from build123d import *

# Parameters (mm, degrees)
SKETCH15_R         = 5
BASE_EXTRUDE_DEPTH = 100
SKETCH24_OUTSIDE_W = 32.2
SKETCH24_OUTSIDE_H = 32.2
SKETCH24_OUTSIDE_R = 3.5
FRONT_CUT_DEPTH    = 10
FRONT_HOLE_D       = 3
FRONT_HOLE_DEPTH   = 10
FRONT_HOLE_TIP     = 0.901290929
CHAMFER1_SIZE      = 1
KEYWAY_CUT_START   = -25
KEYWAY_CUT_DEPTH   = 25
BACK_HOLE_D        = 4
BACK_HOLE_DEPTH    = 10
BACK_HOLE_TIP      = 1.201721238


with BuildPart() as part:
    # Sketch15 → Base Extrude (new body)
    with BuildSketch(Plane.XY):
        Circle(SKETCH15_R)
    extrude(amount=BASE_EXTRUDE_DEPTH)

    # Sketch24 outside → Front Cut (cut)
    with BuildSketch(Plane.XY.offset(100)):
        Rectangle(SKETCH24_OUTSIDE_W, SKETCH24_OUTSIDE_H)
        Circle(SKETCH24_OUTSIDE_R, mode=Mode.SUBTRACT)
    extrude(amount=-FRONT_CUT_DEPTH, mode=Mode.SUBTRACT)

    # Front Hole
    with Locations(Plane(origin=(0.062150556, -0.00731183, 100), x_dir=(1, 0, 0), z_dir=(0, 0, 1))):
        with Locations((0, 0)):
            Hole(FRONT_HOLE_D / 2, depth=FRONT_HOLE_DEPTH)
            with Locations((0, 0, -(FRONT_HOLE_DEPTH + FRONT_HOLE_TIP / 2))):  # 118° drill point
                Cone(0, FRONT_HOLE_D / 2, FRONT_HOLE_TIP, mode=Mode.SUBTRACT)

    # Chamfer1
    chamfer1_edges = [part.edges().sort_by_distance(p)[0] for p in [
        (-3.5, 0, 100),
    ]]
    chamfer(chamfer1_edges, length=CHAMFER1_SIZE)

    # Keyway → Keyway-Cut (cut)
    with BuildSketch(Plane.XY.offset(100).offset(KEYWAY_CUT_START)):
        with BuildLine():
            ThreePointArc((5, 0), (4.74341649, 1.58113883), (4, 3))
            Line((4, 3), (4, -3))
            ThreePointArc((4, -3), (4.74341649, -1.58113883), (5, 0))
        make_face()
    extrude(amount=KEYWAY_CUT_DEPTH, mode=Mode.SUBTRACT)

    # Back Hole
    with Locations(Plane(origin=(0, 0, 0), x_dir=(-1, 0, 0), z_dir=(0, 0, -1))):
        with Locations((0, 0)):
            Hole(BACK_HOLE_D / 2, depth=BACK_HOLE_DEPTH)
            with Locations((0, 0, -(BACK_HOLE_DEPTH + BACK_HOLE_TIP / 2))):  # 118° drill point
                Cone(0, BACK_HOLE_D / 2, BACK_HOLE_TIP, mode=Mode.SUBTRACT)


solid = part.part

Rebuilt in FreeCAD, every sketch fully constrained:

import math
import FreeCAD as App
import Part
import Sketcher
from FreeCAD import Vector
Q = App.Units.Quantity


def edges_at(feature, points):
    """Names of the edges that pass closest to the given points."""
    edges = feature.Shape.Edges
    near = lambda p: min(range(len(edges)), key=lambda i: edges[i].distToShape(Part.Vertex(*p))[0])
    return sorted({f"Edge{near(p) + 1}" for p in points})


def add_polygon(sketch, points):
    """Adds a closed chain of lines whose ends are joined by coincident constraints."""
    first, n = sketch.GeometryCount, len(points)
    for a, b in zip(points, points[1:] + points[:1]):
        sketch.addGeometry(Part.LineSegment(App.Vector(*a, 0), App.Vector(*b, 0)), False)
    for i in range(n):
        sketch.addConstraint(Sketcher.Constraint("Coincident", first + i, 2, first + (i + 1) % n, 1))

doc = App.newDocument("Part")
body = doc.addObject("PartDesign::Body", "Body")

# Sketch on XY plane
sketch1 = body.newObject("Sketcher::SketchObject", "Sketch")
sketch1.AttachmentSupport = (doc.getObject("XY_Plane"), [""])
sketch1.MapMode = "FlatFace"
sketch1.addGeometry(Part.Circle(Vector(0, 0, 0), Vector(0, 0, 1), 5), False)
sketch1.addConstraint([
    Sketcher.Constraint("Coincident", 0, 3, -1, 1),
    Sketcher.Constraint("Diameter", 0, Q("10 mm")),
])
pad1 = body.newObject("PartDesign::Pad", "Pad")
pad1.Profile = sketch1
pad1.Length = 100

# Sketch on XY plane
sketch2 = body.newObject("Sketcher::SketchObject", "Sketch001")
sketch2.AttachmentSupport = (doc.getObject("XY_Plane"), [""])
sketch2.MapMode = "FlatFace"
sketch2.AttachmentOffset = App.Placement(Vector(0, 0, 100), App.Rotation())
add_polygon(sketch2, [(-16.1, 16.1), (-16.1, -16.1), (16.1, -16.1), (16.1, 16.1)])  # lines 0-3
sketch2.addGeometry(Part.Circle(Vector(0, 0, 0), Vector(0, 0, 1), 3.5), False)  # 4
sketch2.addConstraint([
    Sketcher.Constraint("Vertical", 0),
    Sketcher.Constraint("Horizontal", 1),
    Sketcher.Constraint("Vertical", 2),
    Sketcher.Constraint("Horizontal", 3),
    Sketcher.Constraint("Coincident", 4, 3, -1, 1),
    Sketcher.Constraint("Symmetric", 0, 2, 2, 2, -1, 1),
    Sketcher.Constraint("Equal", 3, 0),
    Sketcher.Constraint("Diameter", 4, Q("7 mm")),
    Sketcher.Constraint("DistanceX", 1, 1, 1, 2, Q("32.2 mm")),
])
pocket1 = body.newObject("PartDesign::Pocket", "Pocket")
pocket1.Profile = sketch2
pocket1.Length = 10

# Sketch on XY plane
sketch3 = body.newObject("Sketcher::SketchObject", "Sketch002")
sketch3.AttachmentSupport = (doc.getObject("XY_Plane"), [""])
sketch3.MapMode = "FlatFace"
sketch3.AttachmentOffset = App.Placement(Vector(0, 0, 100), App.Rotation())
sketch3.addGeometry(Part.Circle(Vector(0.1, 0, 0), Vector(0, 0, 1), 1.5), False)
sketch3.addConstraint([
    Sketcher.Constraint("Diameter", 0, Q("3 mm")),
    Sketcher.Constraint("DistanceX", -1, 1, 0, 3, Q("0.062151 mm")),
    Sketcher.Constraint("DistanceY", 0, 3, -1, 1, Q("0.007312 mm")),
])
doc.recompute()
hole = body.newObject("PartDesign::Hole", "Hole")
hole.Profile = sketch3
hole.ThreadType = "None"
hole.Diameter = 3
hole.DepthType = "Dimension"
hole.Depth = 10
hole.DrillPoint = "Angled"
hole.DrillPointAngle = 118
doc.recompute()

chamfer = body.newObject("PartDesign::Chamfer", "Chamfer")
chamfer.Base = (hole, edges_at(hole, [(-3.5, 0, 100)]))
chamfer.Size = 1

# Sketch on XY plane
sketch4 = body.newObject("Sketcher::SketchObject", "Sketch003")
sketch4.AttachmentSupport = (doc.getObject("XY_Plane"), [""])
sketch4.MapMode = "FlatFace"
sketch4.AttachmentOffset = App.Placement(Vector(0, 0, 75), App.Rotation())
sketch4.addGeometry([
    Part.ArcOfCircle(Part.Circle(Vector(0, 0, 0), Vector(0, 0, 1), 5), math.radians(0), math.radians(37)),
    Part.LineSegment(Vector(4, 3, 0), Vector(4, -3, 0)),
    Part.ArcOfCircle(Part.Circle(Vector(0, 0, 0), Vector(0, 0, 1), 5), math.radians(-37), math.radians(0)),
], False)
sketch4.addConstraint([
    Sketcher.Constraint("Coincident", 0, 2, 1, 1),
    Sketcher.Constraint("Coincident", 1, 2, 2, 1),
    Sketcher.Constraint("Tangent", 2, 2, 0, 1),
    Sketcher.Constraint("Vertical", 1),
    Sketcher.Constraint("Coincident", 0, 3, -1, 1),
    Sketcher.Constraint("Equal", 0, 2),
    Sketcher.Constraint("PointOnObject", 2, 2, -1),
    Sketcher.Constraint("Radius", 0, Q("5 mm")),
    Sketcher.Constraint("DistanceY", 1, 2, 1, 1, Q("6 mm")),
])
pocket2 = body.newObject("PartDesign::Pocket", "Pocket001")
pocket2.Profile = sketch4
pocket2.Length = 25
pocket2.Reversed = True

# Sketch on XY plane
sketch5 = body.newObject("Sketcher::SketchObject", "Sketch004")
sketch5.AttachmentSupport = (doc.getObject("XY_Plane"), [""])
sketch5.MapMode = "FlatFace"
sketch5.addGeometry(Part.Circle(Vector(0, 0, 0), Vector(0, 0, 1), 2), False)
sketch5.addConstraint([
    Sketcher.Constraint("Coincident", 0, 3, -1, 1),
    Sketcher.Constraint("Diameter", 0, Q("4 mm")),
])
doc.recompute()
hole2 = body.newObject("PartDesign::Hole", "Hole001")
hole2.Profile = sketch5
hole2.ThreadType = "None"
hole2.Diameter = 4
hole2.DepthType = "Dimension"
hole2.Depth = 10
hole2.DrillPoint = "Angled"
hole2.DrillPointAngle = 118
hole2.Reversed = True

doc.recompute()
